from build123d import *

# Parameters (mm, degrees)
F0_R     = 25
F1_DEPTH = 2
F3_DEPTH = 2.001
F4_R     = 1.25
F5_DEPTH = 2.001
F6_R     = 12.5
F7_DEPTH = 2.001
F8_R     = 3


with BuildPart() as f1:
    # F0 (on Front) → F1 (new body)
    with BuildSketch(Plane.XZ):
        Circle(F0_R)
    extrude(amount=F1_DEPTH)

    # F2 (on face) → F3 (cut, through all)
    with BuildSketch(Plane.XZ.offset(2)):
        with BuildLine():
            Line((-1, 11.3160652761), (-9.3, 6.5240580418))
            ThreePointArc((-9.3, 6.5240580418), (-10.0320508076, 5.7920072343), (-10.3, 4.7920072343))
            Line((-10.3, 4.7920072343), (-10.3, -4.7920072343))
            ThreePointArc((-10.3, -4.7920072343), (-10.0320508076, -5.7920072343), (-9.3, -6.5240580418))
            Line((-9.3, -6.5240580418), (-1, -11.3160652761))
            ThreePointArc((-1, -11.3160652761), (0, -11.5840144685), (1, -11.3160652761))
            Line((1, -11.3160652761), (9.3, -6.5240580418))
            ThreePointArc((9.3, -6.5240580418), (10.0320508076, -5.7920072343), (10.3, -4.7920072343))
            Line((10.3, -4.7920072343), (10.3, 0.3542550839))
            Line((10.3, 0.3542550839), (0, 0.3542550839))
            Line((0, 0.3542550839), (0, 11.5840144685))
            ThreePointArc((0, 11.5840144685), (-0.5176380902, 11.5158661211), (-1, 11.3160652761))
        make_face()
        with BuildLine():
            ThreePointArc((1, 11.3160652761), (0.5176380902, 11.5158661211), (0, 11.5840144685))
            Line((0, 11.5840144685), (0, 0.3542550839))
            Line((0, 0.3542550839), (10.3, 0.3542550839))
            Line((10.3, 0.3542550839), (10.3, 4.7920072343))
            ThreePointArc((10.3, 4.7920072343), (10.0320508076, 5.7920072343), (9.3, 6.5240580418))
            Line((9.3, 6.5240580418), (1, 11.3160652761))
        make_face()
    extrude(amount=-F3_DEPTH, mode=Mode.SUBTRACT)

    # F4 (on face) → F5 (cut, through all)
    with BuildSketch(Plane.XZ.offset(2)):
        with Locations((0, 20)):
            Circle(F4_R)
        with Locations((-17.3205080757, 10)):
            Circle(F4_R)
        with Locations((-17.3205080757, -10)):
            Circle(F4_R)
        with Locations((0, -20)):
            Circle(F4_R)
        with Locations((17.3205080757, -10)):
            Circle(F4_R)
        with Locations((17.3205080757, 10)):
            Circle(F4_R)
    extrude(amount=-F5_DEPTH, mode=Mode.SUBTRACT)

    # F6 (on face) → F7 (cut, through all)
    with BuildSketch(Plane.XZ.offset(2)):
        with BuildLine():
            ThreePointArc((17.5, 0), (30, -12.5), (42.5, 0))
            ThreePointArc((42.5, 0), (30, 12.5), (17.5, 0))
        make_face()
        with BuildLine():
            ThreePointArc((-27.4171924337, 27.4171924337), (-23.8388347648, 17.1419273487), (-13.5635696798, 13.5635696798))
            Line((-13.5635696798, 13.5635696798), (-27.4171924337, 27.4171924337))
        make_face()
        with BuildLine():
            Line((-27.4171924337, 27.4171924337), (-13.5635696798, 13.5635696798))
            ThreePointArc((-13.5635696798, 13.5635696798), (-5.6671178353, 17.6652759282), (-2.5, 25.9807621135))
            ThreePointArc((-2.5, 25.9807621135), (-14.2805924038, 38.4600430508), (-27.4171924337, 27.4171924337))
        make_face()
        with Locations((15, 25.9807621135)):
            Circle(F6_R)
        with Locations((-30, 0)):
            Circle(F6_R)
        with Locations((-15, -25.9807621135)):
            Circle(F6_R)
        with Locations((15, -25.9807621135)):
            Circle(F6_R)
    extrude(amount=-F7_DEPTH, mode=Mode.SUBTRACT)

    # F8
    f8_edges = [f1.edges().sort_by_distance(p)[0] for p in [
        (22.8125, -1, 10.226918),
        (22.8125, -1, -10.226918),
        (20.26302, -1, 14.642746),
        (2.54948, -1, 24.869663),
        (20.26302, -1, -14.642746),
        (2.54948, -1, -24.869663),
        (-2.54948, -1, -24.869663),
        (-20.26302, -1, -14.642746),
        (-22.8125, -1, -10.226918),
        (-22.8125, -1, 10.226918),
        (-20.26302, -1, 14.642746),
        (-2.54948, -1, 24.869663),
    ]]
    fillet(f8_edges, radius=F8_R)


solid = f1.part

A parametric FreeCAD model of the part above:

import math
import FreeCAD as App
import Part
import Sketcher
from FreeCAD import Vector
Q = App.Units.Quantity


def edges_at(feature, points):
    """Names of the edges that pass closest to the given points."""
    edges = feature.Shape.Edges
    near = lambda p: min(range(len(edges)), key=lambda i: edges[i].distToShape(Part.Vertex(*p))[0])
    return sorted({f"Edge{near(p) + 1}" for p in points})

doc = App.newDocument("Part")
params = doc.addObject("Spreadsheet::Sheet", "Params")
for row, (alias, value) in enumerate([
    ("sketch1_diameter", "50 mm"),
    ("pad1_length", "2 mm"),
    ("sketch2_radius", "2 mm"),
    ("sketch3_diameter", "2.5 mm"),
    ("sketch4_diameter", "25 mm"),
    ("fillet_radius", "3 mm"),
], start=1):
    params.set(f"A{row}", alias)
    params.set(f"B{row}", "=" + value)
    params.setAlias(f"B{row}", alias)

body = doc.addObject("PartDesign::Body", "Body")

# Sketch on XZ plane
sketch1 = body.newObject("Sketcher::SketchObject", "Sketch")
sketch1.AttachmentSupport = (doc.getObject("XZ_Plane"), [""])
sketch1.MapMode = "FlatFace"
sketch1.addGeometry(Part.Circle(Vector(0, 0, 0), Vector(0, 0, 1), 25), False)
sketch1.addConstraint([
    Sketcher.Constraint("Coincident", 0, 3, -1, 1),
    Sketcher.Constraint("Diameter", 0, Q("50 mm")),
])
sketch1.setExpression("Constraints[1]", "Params.sketch1_diameter")
pad1 = body.newObject("PartDesign::Pad", "Pad")
pad1.Profile = sketch1
pad1.setExpression("Length", "Params.pad1_length")

# Sketch on XZ plane
sketch2 = body.newObject("Sketcher::SketchObject", "Sketch001")
sketch2.AttachmentSupport = (doc.getObject("XZ_Plane"), [""])
sketch2.MapMode = "FlatFace"
sketch2.AttachmentOffset = App.Placement(Vector(0, 0, 2), App.Rotation())
sketch2.addGeometry([
    Part.LineSegment(Vector(-1, 11.3, 0), Vector(-9.3, 6.5, 0)),  # 0
    Part.ArcOfCircle(Part.Circle(Vector(-8.3, 4.8, 0), Vector(0, 0, 1), 2), math.radians(120), math.radians(180)),  # 1
    Part.LineSegment(Vector(-10.3, 4.8, 0), Vector(-10.3, -4.8, 0)),  # 2
    Part.ArcOfCircle(Part.Circle(Vector(-8.3, -4.8, 0), Vector(0, 0, 1), 2), math.radians(180), math.radians(240)),  # 3
    Part.LineSegment(Vector(-9.3, -6.5, 0), Vector(-1, -11.3, 0)),  # 4
    Part.ArcOfCircle(Part.Circle(Vector(0, -9.6, 0), Vector(0, 0, 1), 2), math.radians(-120), math.radians(-60)),  # 5
    Part.LineSegment(Vector(1, -11.3, 0), Vector(9.3, -6.5, 0)),  # 6
    Part.ArcOfCircle(Part.Circle(Vector(8.3, -4.8, 0), Vector(0, 0, 1), 2), math.radians(-60), math.radians(0)),  # 7
    Part.LineSegment(Vector(10.3, -4.8, 0), Vector(10.3, 4.8, 0)),  # 8
    Part.ArcOfCircle(Part.Circle(Vector(8.3, 4.8, 0), Vector(0, 0, 1), 2), math.radians(0), math.radians(60)),  # 9
    Part.LineSegment(Vector(9.3, 6.5, 0), Vector(1, 11.3, 0)),  # 10
    Part.ArcOfCircle(Part.Circle(Vector(0, 9.6, 0), Vector(0, 0, 1), 2), math.radians(60), math.radians(90)),  # 11
    Part.ArcOfCircle(Part.Circle(Vector(0, 9.6, 0), Vector(0, 0, 1), 2), math.radians(90), math.radians(120)),  # 12
], False)
sketch2.addConstraint([
    Sketcher.Constraint("Tangent", 0, 2, 1, 1),
    Sketcher.Constraint("Tangent", 1, 2, 2, 1),
    Sketcher.Constraint("Tangent", 2, 2, 3, 1),
    Sketcher.Constraint("Tangent", 3, 2, 4, 1),
    Sketcher.Constraint("Tangent", 4, 2, 5, 1),
    Sketcher.Constraint("Tangent", 5, 2, 6, 1),
    Sketcher.Constraint("Tangent", 6, 2, 7, 1),
    Sketcher.Constraint("Tangent", 7, 2, 8, 1),
    Sketcher.Constraint("Tangent", 8, 2, 9, 1),
    Sketcher.Constraint("Tangent", 9, 2, 10, 1),
    Sketcher.Constraint("Tangent", 10, 2, 11, 1),
    Sketcher.Constraint("Tangent", 11, 2, 12, 1),
    Sketcher.Constraint("Tangent", 12, 2, 0, 1),
    Sketcher.Constraint("Vertical", 2),
    Sketcher.Constraint("Vertical", 8),
    Sketcher.Constraint("Equal", 1, 3),
    Sketcher.Constraint("Equal", 3, 5),
    Sketcher.Constraint("Equal", 5, 7),
    Sketcher.Constraint("Equal", 7, 9),
    Sketcher.Constraint("Equal", 9, 11),
    Sketcher.Constraint("Equal", 11, 12),
    Sketcher.Constraint("Symmetric", 1, 3, 7, 3, -1, 1),
    Sketcher.Constraint("Symmetric", 5, 3, 11, 3, -1, 1),
    Sketcher.Constraint("Symmetric", 4, 2, 5, 2, -2),
    Sketcher.Constraint("PointOnObject", 11, 2, -2),
    Sketcher.Constraint("Parallel", 4, 10),
    Sketcher.Constraint("Radius", 1, Q("2 mm")),
    Sketcher.Constraint("Angle", 0, Q("-150 deg")),
    Sketcher.Constraint("DistanceX", 1, 3, -1, 1, Q("8.3 mm")),
    Sketcher.Constraint("DistanceY", 2, 2, 2, 1, Q("9.584014 mm")),
])
sketch2.setExpression("Constraints[26]", "Params.sketch2_radius")
pocket1 = body.newObject("PartDesign::Pocket", "Pocket")
pocket1.Profile = sketch2
pocket1.Type = "ThroughAll"

# Sketch on XZ plane
sketch3 = body.newObject("Sketcher::SketchObject", "Sketch002")
sketch3.AttachmentSupport = (doc.getObject("XZ_Plane"), [""])
sketch3.MapMode = "FlatFace"
sketch3.AttachmentOffset = App.Placement(Vector(0, 0, 2), App.Rotation())
sketch3.addGeometry([
    Part.Circle(Vector(0, 20, 0), Vector(0, 0, 1), 1.2),  # 0
    Part.Circle(Vector(-17.3, 10, 0), Vector(0, 0, 1), 1.2),  # 1
    Part.Circle(Vector(-17.3, -10, 0), Vector(0, 0, 1), 1.2),  # 2
    Part.Circle(Vector(0, -20, 0), Vector(0, 0, 1), 1.2),  # 3
    Part.Circle(Vector(17.3, -10, 0), Vector(0, 0, 1), 1.2),  # 4
    Part.Circle(Vector(17.3, 10, 0), Vector(0, 0, 1), 1.2),  # 5
], False)
sketch3.addConstraint([
    Sketcher.Constraint("Equal", 0, 1),
    Sketcher.Constraint("Equal", 1, 2),
    Sketcher.Constraint("Equal", 2, 3),
    Sketcher.Constraint("Equal", 3, 4),
    Sketcher.Constraint("Equal", 4, 5),
    Sketcher.Constraint("Symmetric", 0, 3, 3, 3, -1, 1),
    Sketcher.Constraint("Symmetric", 1, 3, 4, 3, -1, 1),
    Sketcher.Constraint("Symmetric", 2, 3, 5, 3, -1, 1),
    Sketcher.Constraint("Symmetric", 2, 3, 4, 3, -2),
    Sketcher.Constraint("PointOnObject", 0, 3, -2),
    Sketcher.Constraint("Diameter", 0, Q("2.5 mm")),
    Sketcher.Constraint("DistanceY", -1, 1, 0, 3, Q("20 mm")),
    Sketcher.Constraint("DistanceY", -1, 1, 1, 3, Q("10 mm")),
    Sketcher.Constraint("DistanceX", 1, 3, -1, 1, Q("17.320508 mm")),
])
sketch3.setExpression("Constraints[10]", "Params.sketch3_diameter")
pocket2 = body.newObject("PartDesign::Pocket", "Pocket001")
pocket2.Profile = sketch3
pocket2.Type = "ThroughAll"

# Sketch on XZ plane
sketch4 = body.newObject("Sketcher::SketchObject", "Sketch003")
sketch4.AttachmentSupport = (doc.getObject("XZ_Plane"), [""])
sketch4.MapMode = "FlatFace"
sketch4.AttachmentOffset = App.Placement(Vector(0, 0, 2), App.Rotation())
sketch4.addGeometry([
    Part.Circle(Vector(30, 0, 0), Vector(0, 0, 1), 12),  # 0
    Part.ArcOfCircle(Part.Circle(Vector(-15, 26, 0), Vector(0, 0, 1), 12), math.radians(173), math.radians(277)),  # 1
    Part.ArcOfCircle(Part.Circle(Vector(-15, 26, 0), Vector(0, 0, 1), 12), math.radians(-83), math.radians(0)),  # 2
    Part.ArcOfCircle(Part.Circle(Vector(-15, 26, 0), Vector(0, 0, 1), 12), math.radians(0), math.radians(173)),  # 3
    Part.Circle(Vector(15, 26, 0), Vector(0, 0, 1), 12),  # 4
    Part.Circle(Vector(-30, 0, 0), Vector(0, 0, 1), 12),  # 5
    Part.Circle(Vector(-15, -26, 0), Vector(0, 0, 1), 12),  # 6
    Part.Circle(Vector(15, -26, 0), Vector(0, 0, 1), 12),  # 7
], False)
sketch4.addConstraint([
    Sketcher.Constraint("Tangent", 1, 2, 2, 1),
    Sketcher.Constraint("Tangent", 2, 2, 3, 1),
    Sketcher.Constraint("Tangent", 3, 2, 1, 1),
    Sketcher.Constraint("Equal", 0, 1),
    Sketcher.Constraint("Equal", 3, 4),
    Sketcher.Constraint("Equal", 4, 5),
    Sketcher.Constraint("Equal", 5, 6),
    Sketcher.Constraint("Equal", 6, 7),
    Sketcher.Constraint("Symmetric", 0, 3, 5, 3, -1, 1),
    Sketcher.Constraint("Symmetric", 4, 3, 6, 3, -1, 1),
    Sketcher.Constraint("Symmetric", 1, 3, 7, 3, -1, 1),
    Sketcher.Constraint("Symmetric", 1, 3, 4, 3, -2),
    Sketcher.Constraint("PointOnObject", 0, 3, -1),
    Sketcher.Constraint("Horizontal", 4, 3, 2, 2),
    Sketcher.Constraint("Diameter", 0, Q("25 mm")),
    Sketcher.Constraint("DistanceX", -1, 1, 0, 3, Q("30 mm")),
    Sketcher.Constraint("DistanceX", 1, 3, -1, 1, Q("15 mm")),
    Sketcher.Constraint("DistanceX", 1, 2, -1, 1, Q("13.56357 mm")),
    Sketcher.Constraint("DistanceY", -1, 1, 1, 2, Q("13.56357 mm")),
    Sketcher.Constraint("DistanceY", 1, 3, 3, 2, Q("1.43643 mm")),
])
sketch4.setExpression("Constraints[14]", "Params.sketch4_diameter")
pocket3 = body.newObject("PartDesign::Pocket", "Pocket002")
pocket3.Profile = sketch4
pocket3.Type = "ThroughAll"
doc.recompute()

fillet = body.newObject("PartDesign::Fillet", "Fillet")
fillet.Base = (pocket3, edges_at(pocket3, [
    (22.812, -1, 10.227),
    (22.812, -1, -10.227),
    (20.263, -1, 14.643),
    (2.549, -1, 24.87),
    (20.263, -1, -14.643),
    (2.549, -1, -24.87),
    (-2.549, -1, -24.87),
    (-20.263, -1, -14.643),
    (-22.812, -1, -10.227),
    (-22.812, -1, 10.227),
    (-20.263, -1, 14.643),
    (-2.549, -1, 24.87),
]))
fillet.setExpression("Radius", "Params.fillet_radius")

doc.recompute()
